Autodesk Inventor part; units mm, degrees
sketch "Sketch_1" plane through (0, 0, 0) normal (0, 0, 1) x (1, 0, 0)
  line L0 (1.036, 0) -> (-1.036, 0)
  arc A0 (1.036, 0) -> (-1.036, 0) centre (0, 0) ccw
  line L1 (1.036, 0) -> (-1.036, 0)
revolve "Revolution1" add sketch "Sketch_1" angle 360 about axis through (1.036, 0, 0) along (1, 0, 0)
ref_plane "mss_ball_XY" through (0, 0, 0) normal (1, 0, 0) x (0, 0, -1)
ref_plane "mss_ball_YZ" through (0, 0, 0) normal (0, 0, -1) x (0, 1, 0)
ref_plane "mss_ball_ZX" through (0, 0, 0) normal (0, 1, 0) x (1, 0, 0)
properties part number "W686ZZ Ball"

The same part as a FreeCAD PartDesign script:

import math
import FreeCAD as App
import Part
import Sketcher
from FreeCAD import Vector

doc = App.newDocument("Part")
params = doc.addObject("Spreadsheet::Sheet", "Params")
for row, (alias, value) in enumerate([
    ("revolution_angle", "360 deg"),
], start=1):
    params.set(f"A{row}", alias)
    params.set(f"B{row}", "=" + value)
    params.setAlias(f"B{row}", alias)

body = doc.addObject("PartDesign::Body", "Body")

# Sketch on XY plane
sketch1 = doc.addObject("Sketcher::SketchObject", "Sketch")
body.addObject(sketch1)
sketch1.AttachmentSupport = (doc.XY_Plane, [""])
sketch1.MapMode = "FlatFace"
sketch1.addGeometry([
    Part.LineSegment(Vector(-1.036, 0, 0), Vector(1.036, 0, 0)),
    Part.ArcOfCircle(Part.Circle(Vector(0, 0, 0), Vector(0, 0, 1), 1.036), math.radians(0), math.radians(180)),
], False)
sketch1.addConstraint([
    Sketcher.Constraint("Coincident", 0, 1, 1, 2),
    Sketcher.Constraint("Coincident", 1, 1, 0, 2),
    Sketcher.Constraint("Horizontal", 0),
    Sketcher.Constraint("Coincident", 1, 3, -1, 1),
    Sketcher.Constraint("PointOnObject", 0, 1, -1),
    Sketcher.Constraint("Radius", 1, 1.036),
])
revolution = doc.addObject("PartDesign::Revolution", "Revolution")
body.addObject(revolution)
revolution.Profile = sketch1
revolution.ReferenceAxis = (sketch1, ["H_Axis"])
revolution.setExpression("Angle", "Params.revolution_angle")

doc.recompute()
